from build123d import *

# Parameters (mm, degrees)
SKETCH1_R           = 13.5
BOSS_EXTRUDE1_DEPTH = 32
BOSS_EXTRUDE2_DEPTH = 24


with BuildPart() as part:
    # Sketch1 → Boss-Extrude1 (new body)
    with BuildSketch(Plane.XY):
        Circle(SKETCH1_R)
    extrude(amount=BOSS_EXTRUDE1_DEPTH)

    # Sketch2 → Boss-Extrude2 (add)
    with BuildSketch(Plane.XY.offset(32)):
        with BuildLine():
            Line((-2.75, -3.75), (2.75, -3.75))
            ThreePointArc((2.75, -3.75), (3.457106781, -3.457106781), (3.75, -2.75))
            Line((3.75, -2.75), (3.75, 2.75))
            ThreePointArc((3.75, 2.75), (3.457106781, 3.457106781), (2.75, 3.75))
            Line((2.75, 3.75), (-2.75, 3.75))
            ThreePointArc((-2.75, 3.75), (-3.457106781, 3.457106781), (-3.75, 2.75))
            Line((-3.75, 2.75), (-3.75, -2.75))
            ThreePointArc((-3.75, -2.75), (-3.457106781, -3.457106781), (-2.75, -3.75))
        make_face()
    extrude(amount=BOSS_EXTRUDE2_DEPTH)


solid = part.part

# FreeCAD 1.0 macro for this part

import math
import FreeCAD as App
import Part
import Sketcher

V = App.Vector

doc = App.newDocument("Part")
body = doc.addObject("PartDesign::Body", "Body")

# Sketch on XY plane
sketch1 = body.newObject("Sketcher::SketchObject", "Sketch")
sketch1.AttachmentSupport = (doc.getObject("XY_Plane"), [""])
sketch1.MapMode = "FlatFace"
sketch1.addGeometry(Part.Circle(V(0, 0, 0), V(0, 0, 1), 13.5), False)
sketch1.addConstraint(Sketcher.Constraint("Coincident", 0, 3, -1, 1))
sketch1.addConstraint(Sketcher.Constraint("Diameter", 0, 27.0))
pad1 = body.newObject("PartDesign::Pad", "Pad")
pad1.Profile = sketch1
pad1.Length = 32

# Sketch on XY plane
sketch2 = body.newObject("Sketcher::SketchObject", "Sketch001")
sketch2.AttachmentSupport = (doc.getObject("XY_Plane"), [""])
sketch2.MapMode = "FlatFace"
sketch2.AttachmentOffset = App.Placement(V(0, 0, 32), App.Rotation())
sketch2.addGeometry(Part.LineSegment(V(-2.75, -3.75, 0), V(2.75, -3.75, 0)), False)
sketch2.addGeometry(Part.ArcOfCircle(Part.Circle(V(2.75, -2.75, 0), V(0, 0, 1), 1), math.radians(-90), math.radians(0)), False)
sketch2.addGeometry(Part.LineSegment(V(3.75, -2.75, 0), V(3.75, 2.75, 0)), False)
sketch2.addGeometry(Part.ArcOfCircle(Part.Circle(V(2.75, 2.75, 0), V(0, 0, 1), 1), math.radians(0), math.radians(90)), False)
sketch2.addGeometry(Part.LineSegment(V(2.75, 3.75, 0), V(-2.75, 3.75, 0)), False)
sketch2.addGeometry(Part.ArcOfCircle(Part.Circle(V(-2.75, 2.75, 0), V(0, 0, 1), 1), math.radians(90), math.radians(180)), False)
sketch2.addGeometry(Part.LineSegment(V(-3.75, 2.75, 0), V(-3.75, -2.75, 0)), False)
sketch2.addGeometry(Part.ArcOfCircle(Part.Circle(V(-2.75, -2.75, 0), V(0, 0, 1), 1), math.radians(-180), math.radians(-90)), False)
sketch2.addConstraint(Sketcher.Constraint("Tangent", 0, 2, 1, 1))
sketch2.addConstraint(Sketcher.Constraint("Tangent", 1, 2, 2, 1))
sketch2.addConstraint(Sketcher.Constraint("Tangent", 2, 2, 3, 1))
sketch2.addConstraint(Sketcher.Constraint("Tangent", 3, 2, 4, 1))
sketch2.addConstraint(Sketcher.Constraint("Tangent", 4, 2, 5, 1))
sketch2.addConstraint(Sketcher.Constraint("Tangent", 5, 2, 6, 1))
sketch2.addConstraint(Sketcher.Constraint("Tangent", 6, 2, 7, 1))
sketch2.addConstraint(Sketcher.Constraint("Tangent", 7, 2, 0, 1))
sketch2.addConstraint(Sketcher.Constraint("Horizontal", 0))
sketch2.addConstraint(Sketcher.Constraint("Vertical", 2))
sketch2.addConstraint(Sketcher.Constraint("Horizontal", 4))
sketch2.addConstraint(Sketcher.Constraint("Vertical", 6))
sketch2.addConstraint(Sketcher.Constraint("Equal", 1, 3))
sketch2.addConstraint(Sketcher.Constraint("Equal", 3, 5))
sketch2.addConstraint(Sketcher.Constraint("Equal", 5, 7))
sketch2.addConstraint(Sketcher.Constraint("Symmetric", 1, 3, 5, 3, -1, 1))
sketch2.addConstraint(Sketcher.Constraint("Equal", 4, 2))
sketch2.addConstraint(Sketcher.Constraint("Radius", 1, 1.0))
sketch2.addConstraint(Sketcher.Constraint("DistanceX", 0, 1, 0, 2, 5.5))
pad2 = body.newObject("PartDesign::Pad", "Pad001")
pad2.Profile = sketch2
pad2.Length = 24

doc.recompute()
